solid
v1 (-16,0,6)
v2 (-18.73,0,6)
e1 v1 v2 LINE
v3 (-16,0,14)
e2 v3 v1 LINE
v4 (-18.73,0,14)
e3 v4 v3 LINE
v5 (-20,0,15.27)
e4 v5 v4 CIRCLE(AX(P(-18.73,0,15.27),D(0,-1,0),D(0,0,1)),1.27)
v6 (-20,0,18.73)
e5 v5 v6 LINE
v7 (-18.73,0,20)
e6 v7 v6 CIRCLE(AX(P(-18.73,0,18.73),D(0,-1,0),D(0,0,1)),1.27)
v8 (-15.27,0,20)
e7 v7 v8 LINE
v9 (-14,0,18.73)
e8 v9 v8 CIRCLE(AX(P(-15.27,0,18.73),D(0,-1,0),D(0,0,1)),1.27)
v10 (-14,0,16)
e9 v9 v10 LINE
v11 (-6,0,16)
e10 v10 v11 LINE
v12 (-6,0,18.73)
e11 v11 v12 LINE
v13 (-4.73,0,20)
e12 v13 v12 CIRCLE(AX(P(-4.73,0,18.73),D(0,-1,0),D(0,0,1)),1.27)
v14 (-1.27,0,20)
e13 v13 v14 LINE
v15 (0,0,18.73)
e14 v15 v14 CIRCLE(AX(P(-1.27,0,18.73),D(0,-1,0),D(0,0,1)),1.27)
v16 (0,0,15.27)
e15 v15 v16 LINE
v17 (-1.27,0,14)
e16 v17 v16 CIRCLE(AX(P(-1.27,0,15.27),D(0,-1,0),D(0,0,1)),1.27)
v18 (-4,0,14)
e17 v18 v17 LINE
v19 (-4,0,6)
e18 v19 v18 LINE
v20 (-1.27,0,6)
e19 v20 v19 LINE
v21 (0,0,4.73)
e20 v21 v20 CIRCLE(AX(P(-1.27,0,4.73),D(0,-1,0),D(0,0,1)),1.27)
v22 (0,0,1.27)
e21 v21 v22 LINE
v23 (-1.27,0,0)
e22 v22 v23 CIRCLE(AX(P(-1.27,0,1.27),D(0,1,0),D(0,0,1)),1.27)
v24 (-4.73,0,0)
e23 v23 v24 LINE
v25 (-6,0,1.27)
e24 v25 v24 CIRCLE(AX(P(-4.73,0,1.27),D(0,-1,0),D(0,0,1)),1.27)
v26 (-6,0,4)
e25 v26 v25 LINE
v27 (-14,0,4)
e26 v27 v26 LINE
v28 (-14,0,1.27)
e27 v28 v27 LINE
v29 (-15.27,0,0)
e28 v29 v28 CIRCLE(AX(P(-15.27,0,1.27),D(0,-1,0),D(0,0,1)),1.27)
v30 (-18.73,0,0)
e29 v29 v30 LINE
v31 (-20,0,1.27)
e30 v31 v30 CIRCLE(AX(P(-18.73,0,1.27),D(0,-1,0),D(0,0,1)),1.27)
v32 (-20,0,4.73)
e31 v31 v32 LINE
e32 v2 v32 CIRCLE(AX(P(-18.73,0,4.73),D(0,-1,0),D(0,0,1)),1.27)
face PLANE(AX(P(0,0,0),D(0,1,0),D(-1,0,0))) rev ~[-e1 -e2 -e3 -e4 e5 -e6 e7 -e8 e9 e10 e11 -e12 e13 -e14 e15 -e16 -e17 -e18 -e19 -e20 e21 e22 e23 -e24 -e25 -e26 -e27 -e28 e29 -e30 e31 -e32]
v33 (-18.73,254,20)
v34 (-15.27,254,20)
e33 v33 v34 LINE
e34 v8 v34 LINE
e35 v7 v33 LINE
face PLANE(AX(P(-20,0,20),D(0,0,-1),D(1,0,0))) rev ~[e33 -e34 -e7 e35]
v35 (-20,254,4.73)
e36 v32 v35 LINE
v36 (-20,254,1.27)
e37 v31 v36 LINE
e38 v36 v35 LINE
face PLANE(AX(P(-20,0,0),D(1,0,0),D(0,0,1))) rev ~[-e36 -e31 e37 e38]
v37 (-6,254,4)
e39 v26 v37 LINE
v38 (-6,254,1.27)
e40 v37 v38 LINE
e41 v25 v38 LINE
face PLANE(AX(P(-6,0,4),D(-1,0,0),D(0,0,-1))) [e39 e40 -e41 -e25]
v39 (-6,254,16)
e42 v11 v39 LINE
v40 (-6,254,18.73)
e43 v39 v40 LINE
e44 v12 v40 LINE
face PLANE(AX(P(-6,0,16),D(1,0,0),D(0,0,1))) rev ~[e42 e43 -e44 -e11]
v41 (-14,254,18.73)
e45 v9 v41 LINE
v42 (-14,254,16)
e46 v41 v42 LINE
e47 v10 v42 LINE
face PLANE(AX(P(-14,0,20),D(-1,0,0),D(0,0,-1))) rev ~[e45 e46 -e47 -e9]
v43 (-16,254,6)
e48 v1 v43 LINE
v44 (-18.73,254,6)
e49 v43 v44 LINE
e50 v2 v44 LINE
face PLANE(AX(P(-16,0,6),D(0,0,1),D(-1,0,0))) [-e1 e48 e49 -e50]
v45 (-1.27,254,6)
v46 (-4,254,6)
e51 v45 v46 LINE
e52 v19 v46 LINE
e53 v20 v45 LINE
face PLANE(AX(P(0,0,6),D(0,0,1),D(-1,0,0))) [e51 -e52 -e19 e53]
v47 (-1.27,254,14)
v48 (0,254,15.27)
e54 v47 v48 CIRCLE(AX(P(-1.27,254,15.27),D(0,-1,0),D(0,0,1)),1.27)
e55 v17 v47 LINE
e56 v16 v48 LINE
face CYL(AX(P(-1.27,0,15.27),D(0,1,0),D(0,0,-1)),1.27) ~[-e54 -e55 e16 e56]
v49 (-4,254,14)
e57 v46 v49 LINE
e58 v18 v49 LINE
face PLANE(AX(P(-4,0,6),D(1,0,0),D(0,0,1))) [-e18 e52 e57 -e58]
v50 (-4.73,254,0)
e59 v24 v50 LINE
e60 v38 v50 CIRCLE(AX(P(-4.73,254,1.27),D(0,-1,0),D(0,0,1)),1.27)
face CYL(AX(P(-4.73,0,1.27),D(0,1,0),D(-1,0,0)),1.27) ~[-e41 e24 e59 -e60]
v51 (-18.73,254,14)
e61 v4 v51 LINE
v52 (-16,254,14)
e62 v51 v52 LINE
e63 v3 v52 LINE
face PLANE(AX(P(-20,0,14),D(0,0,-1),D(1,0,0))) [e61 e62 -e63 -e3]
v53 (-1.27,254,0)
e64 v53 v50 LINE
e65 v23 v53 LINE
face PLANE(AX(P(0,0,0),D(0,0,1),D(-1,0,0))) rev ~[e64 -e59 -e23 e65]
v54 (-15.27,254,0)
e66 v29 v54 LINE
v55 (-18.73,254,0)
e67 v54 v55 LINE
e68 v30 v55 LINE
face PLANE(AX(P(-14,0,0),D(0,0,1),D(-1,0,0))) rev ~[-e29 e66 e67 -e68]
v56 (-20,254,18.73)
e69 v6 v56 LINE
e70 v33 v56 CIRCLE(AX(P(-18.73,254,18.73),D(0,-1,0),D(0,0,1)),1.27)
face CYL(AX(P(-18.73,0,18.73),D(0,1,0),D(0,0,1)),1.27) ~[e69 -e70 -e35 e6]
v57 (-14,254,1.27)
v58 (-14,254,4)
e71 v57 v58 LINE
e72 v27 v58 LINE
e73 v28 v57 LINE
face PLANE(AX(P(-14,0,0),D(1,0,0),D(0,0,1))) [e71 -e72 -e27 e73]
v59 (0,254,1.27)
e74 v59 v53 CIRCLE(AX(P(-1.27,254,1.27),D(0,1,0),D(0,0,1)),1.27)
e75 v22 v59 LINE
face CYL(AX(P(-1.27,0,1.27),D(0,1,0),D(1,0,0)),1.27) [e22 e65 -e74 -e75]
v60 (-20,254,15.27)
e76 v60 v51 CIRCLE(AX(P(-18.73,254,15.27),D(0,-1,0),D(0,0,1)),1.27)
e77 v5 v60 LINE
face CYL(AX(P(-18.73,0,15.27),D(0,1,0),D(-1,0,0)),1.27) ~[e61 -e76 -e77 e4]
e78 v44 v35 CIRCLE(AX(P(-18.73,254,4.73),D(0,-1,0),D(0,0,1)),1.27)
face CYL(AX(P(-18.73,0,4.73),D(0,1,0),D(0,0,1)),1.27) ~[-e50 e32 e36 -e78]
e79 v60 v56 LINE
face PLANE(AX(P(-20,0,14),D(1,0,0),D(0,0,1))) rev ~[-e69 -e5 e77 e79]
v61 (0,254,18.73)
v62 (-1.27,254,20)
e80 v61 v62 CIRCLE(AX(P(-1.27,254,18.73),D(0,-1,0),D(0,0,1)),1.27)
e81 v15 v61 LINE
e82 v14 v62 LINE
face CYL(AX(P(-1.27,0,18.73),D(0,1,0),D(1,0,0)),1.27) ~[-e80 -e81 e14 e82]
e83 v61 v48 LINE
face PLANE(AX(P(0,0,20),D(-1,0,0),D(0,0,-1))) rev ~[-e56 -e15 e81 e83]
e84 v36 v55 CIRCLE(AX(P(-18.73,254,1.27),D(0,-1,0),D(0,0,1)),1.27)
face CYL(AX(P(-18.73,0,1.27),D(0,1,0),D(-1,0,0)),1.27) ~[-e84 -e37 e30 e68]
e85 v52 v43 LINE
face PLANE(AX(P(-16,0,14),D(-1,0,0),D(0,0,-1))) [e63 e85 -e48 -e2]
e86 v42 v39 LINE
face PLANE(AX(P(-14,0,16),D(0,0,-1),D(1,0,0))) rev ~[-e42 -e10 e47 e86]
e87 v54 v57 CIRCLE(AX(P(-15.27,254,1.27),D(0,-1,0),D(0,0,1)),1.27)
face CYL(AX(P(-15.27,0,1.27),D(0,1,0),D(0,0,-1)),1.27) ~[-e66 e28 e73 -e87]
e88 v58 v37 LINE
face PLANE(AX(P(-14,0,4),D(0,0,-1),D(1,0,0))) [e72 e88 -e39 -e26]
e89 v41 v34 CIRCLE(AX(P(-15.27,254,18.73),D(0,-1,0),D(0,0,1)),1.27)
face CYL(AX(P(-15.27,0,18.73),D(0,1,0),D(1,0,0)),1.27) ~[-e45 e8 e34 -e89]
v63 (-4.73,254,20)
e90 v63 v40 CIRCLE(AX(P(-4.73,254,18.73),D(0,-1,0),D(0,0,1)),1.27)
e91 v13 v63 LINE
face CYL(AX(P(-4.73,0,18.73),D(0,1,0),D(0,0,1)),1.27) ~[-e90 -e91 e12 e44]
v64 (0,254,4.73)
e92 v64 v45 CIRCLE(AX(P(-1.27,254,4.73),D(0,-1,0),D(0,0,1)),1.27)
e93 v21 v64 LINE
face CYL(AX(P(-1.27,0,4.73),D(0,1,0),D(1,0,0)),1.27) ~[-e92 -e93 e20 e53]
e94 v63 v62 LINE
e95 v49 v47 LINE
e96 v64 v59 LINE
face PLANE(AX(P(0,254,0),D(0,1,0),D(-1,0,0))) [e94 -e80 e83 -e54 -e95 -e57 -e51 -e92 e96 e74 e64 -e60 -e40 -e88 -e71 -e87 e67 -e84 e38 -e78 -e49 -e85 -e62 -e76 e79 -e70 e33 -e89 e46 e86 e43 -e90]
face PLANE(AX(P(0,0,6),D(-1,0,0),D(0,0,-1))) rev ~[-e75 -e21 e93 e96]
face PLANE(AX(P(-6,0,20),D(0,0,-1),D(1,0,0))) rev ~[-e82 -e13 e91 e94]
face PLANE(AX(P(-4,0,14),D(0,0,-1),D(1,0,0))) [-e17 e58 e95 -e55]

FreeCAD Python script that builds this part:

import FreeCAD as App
import Part
import Sketcher

V = App.Vector
Q = App.Units.Quantity


def edges_at(feature, points):
    """Names of the edges that pass closest to the given points."""
    edges = feature.Shape.Edges
    near = lambda p: min(range(len(edges)), key=lambda i: edges[i].distToShape(Part.Vertex(*p))[0])
    return sorted({f"Edge{near(p) + 1}" for p in points})


def add_polygon(sketch, points):
    """Adds a closed chain of lines whose ends are joined by coincident constraints."""
    first, n = sketch.GeometryCount, len(points)
    for a, b in zip(points, points[1:] + points[:1]):
        sketch.addGeometry(Part.LineSegment(App.Vector(*a, 0), App.Vector(*b, 0)), False)
    for i in range(n):
        sketch.addConstraint(Sketcher.Constraint("Coincident", first + i, 2, first + (i + 1) % n, 1))

doc = App.newDocument("Part")
body = doc.addObject("PartDesign::Body", "Body")

sketch1 = doc.addObject("Sketcher::SketchObject", "Sketch")
body.addObject(sketch1)
sketch1.AttachmentSupport = (doc.XZ_Plane, [""])
sketch1.MapMode = "FlatFace"
add_polygon(sketch1, [(0, 6), (0, 0), (-6, 0), (-6, 4), (-14, 4), (-14, 0), (-20, 0), (-20, 6), (-16, 6), (-16, 14), (-20, 14), (-20, 20), (-14, 20), (-14, 16), (-6, 16), (-6, 20), (0, 20), (0, 14), (-4, 14), (-4, 6)])
sketch1.addConstraint([
    Sketcher.Constraint("Vertical", 0),
    Sketcher.Constraint("Horizontal", 1),
    Sketcher.Constraint("Vertical", 2),
    Sketcher.Constraint("Horizontal", 3),
    Sketcher.Constraint("Vertical", 4),
    Sketcher.Constraint("Horizontal", 5),
    Sketcher.Constraint("Vertical", 6),
    Sketcher.Constraint("Horizontal", 7),
    Sketcher.Constraint("Vertical", 8),
    Sketcher.Constraint("Horizontal", 9),
    Sketcher.Constraint("Vertical", 10),
    Sketcher.Constraint("Horizontal", 11),
    Sketcher.Constraint("Vertical", 12),
    Sketcher.Constraint("Horizontal", 13),
    Sketcher.Constraint("Vertical", 14),
    Sketcher.Constraint("Horizontal", 15),
    Sketcher.Constraint("Vertical", 16),
    Sketcher.Constraint("Horizontal", 17),
    Sketcher.Constraint("Vertical", 18),
    Sketcher.Constraint("Horizontal", 19),
    Sketcher.Constraint("Coincident", 0, 2, -1, 1),
    Sketcher.Constraint("PointOnObject", 4, 2, -1),
    Sketcher.Constraint("PointOnObject", 15, 2, -2),
    Sketcher.Constraint("Horizontal", 11, 2, 14, 2),
    Sketcher.Constraint("Horizontal", 9, 2, 16, 2),
    Sketcher.Constraint("Horizontal", 7, 2, 18, 2),
    Sketcher.Constraint("Vertical", 6, 2, 9, 2),
    Sketcher.Constraint("Vertical", 4, 2, 11, 2),
    Sketcher.Constraint("Vertical", 2, 2, 13, 2),
    Sketcher.Constraint("Equal", 1, 5),
    Sketcher.Constraint("Equal", 9, 17),
    Sketcher.Constraint("Equal", 15, 0),
    Sketcher.Constraint("Equal", 19, 2),
    Sketcher.Constraint("Equal", 13, 8),
    Sketcher.Constraint("Equal", 6, 10),
    Sketcher.Constraint("Equal", 4, 12),
    Sketcher.Constraint("DistanceX", 1, 2, 1, 1, Q("6 mm")),
    Sketcher.Constraint("DistanceX", 3, 2, 3, 1, Q("8 mm")),
    Sketcher.Constraint("DistanceX", 7, 1, 7, 2, Q("4 mm")),
])
pad1 = doc.addObject("PartDesign::Pad", "Pad")
body.addObject(pad1)
pad1.Profile = sketch1
pad1.Length = 254
pad1.Reversed = True
doc.recompute()

fillet = doc.addObject("PartDesign::Fillet", "Fillet")
body.addObject(fillet)
fillet.Base = (pad1, edges_at(pad1, [
    (0, 127, 20),
    (0, 127, 14),
    (-6, 127, 20),
    (-14, 127, 20),
    (-20, 127, 20),
    (-20, 127, 14),
    (0, 127, 6),
    (0, 127, 0),
    (-6, 127, 0),
    (-14, 127, 0),
    (-20, 127, 0),
    (-20, 127, 6),
]))
fillet.Radius = 1.27

doc.recompute()
